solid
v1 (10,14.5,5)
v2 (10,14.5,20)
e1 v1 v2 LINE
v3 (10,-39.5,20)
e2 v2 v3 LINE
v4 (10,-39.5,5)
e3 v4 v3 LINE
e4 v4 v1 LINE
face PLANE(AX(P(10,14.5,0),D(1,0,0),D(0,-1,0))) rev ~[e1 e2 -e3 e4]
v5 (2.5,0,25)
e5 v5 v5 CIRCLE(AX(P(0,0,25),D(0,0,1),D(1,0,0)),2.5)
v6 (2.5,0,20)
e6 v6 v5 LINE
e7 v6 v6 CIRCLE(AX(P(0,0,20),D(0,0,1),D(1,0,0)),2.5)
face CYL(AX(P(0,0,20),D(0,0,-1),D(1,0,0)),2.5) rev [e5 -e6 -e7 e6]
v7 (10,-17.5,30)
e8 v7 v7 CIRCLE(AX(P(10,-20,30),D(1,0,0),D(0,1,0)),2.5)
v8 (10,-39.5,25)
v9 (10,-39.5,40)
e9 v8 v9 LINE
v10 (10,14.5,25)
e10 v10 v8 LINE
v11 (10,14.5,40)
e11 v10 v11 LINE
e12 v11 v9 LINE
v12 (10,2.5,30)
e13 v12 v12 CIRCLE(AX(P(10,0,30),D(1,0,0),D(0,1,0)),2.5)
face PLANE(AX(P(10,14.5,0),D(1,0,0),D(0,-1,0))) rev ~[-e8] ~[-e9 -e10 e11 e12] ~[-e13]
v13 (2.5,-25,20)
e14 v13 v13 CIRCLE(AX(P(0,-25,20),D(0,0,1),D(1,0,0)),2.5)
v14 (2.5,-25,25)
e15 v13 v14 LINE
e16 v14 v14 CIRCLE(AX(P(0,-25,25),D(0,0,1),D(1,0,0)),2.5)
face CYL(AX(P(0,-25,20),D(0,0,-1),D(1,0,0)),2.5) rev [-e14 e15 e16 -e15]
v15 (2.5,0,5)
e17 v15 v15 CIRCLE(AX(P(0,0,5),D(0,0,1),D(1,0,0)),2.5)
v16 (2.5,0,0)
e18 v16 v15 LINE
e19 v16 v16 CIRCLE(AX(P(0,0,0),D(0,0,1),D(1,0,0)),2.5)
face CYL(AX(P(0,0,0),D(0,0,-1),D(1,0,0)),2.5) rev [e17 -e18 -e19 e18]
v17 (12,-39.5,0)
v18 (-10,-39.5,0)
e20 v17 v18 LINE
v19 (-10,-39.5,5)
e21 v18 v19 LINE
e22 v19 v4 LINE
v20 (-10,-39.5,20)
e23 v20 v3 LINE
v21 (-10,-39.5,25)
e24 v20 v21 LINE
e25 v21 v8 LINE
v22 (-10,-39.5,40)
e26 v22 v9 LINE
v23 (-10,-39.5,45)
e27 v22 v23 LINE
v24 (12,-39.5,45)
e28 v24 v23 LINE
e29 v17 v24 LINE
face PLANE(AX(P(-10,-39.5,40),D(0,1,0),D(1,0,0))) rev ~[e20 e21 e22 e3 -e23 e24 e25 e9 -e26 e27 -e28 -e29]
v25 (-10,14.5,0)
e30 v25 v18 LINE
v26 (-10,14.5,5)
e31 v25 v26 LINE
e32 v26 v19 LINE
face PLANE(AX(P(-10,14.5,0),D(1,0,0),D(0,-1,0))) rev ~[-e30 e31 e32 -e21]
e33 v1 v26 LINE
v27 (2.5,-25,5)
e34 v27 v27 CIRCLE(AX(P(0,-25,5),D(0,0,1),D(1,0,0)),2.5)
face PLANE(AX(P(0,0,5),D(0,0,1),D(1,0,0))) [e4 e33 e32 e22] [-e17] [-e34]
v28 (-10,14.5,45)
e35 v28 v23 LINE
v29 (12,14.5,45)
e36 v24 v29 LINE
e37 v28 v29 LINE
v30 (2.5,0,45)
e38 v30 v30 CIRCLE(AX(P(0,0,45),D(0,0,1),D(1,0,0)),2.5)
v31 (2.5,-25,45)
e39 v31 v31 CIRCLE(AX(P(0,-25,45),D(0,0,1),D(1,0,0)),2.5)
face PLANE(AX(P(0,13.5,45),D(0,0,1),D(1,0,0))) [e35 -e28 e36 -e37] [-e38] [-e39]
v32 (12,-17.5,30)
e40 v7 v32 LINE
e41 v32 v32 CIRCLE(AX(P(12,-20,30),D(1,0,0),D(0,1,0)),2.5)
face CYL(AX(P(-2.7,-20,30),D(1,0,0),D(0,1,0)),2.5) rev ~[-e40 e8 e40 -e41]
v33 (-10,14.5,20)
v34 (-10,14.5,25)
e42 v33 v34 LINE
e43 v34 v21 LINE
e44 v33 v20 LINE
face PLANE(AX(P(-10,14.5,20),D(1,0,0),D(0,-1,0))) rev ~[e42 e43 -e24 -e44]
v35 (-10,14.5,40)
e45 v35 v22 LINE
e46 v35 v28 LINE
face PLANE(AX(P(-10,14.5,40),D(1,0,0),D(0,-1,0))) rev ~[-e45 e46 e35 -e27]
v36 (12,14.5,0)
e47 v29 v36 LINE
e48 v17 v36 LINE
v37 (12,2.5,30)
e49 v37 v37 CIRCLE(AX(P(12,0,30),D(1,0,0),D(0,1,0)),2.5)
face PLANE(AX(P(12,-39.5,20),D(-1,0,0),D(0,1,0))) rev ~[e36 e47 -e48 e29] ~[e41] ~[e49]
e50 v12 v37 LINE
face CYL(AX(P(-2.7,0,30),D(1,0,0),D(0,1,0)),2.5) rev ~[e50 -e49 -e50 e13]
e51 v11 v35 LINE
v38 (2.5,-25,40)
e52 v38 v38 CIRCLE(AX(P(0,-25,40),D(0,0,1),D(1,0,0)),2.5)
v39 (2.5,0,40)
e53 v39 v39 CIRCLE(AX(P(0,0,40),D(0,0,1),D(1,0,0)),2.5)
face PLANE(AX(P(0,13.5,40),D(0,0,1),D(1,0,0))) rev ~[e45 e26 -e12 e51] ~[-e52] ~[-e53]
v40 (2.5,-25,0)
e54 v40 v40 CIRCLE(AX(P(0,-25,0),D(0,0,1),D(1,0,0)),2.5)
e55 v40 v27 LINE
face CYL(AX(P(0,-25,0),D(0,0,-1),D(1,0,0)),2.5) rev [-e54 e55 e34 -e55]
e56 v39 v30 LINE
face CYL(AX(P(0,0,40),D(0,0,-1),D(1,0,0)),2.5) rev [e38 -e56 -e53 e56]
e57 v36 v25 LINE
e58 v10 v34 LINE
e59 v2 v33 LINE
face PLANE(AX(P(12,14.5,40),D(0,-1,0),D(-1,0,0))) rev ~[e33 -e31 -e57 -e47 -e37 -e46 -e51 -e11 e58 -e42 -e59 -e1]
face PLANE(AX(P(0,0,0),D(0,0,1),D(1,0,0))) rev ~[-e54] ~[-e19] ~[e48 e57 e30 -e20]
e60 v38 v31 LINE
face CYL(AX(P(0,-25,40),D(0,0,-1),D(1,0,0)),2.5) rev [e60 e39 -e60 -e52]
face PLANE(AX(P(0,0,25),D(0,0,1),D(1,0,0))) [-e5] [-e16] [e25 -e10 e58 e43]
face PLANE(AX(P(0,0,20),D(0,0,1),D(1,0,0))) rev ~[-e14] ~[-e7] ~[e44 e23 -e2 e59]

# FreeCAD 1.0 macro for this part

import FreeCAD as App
import Part
import Sketcher


def add_polygon(sketch, points):
    """Adds a closed chain of lines whose ends are joined by coincident constraints."""
    first, n = sketch.GeometryCount, len(points)
    for a, b in zip(points, points[1:] + points[:1]):
        sketch.addGeometry(Part.LineSegment(App.Vector(*a, 0), App.Vector(*b, 0)), False)
    for i in range(n):
        sketch.addConstraint(Sketcher.Constraint("Coincident", first + i, 2, first + (i + 1) % n, 1))

doc = App.newDocument("Part")
params = doc.addObject("Spreadsheet::Sheet", "Params")
for row, (alias, value) in enumerate([
    ("sketch1_diameter", "5 mm"),
    ("sketch1_width", "22 mm"),
    ("sketch1_height", "54 mm"),
    ("pad1_length", "5 mm"),
    ("sketch2_width", "2 mm"),
    ("sketch2_height", "54 mm"),
    ("pad2_length", "45 mm"),
    ("sketch3_diameter", "5 mm"),
    ("sketch3_width", "22 mm"),
    ("sketch3_height", "54 mm"),
    ("pad3_length", "5 mm"),
    ("sketch4_diameter", "5 mm"),
    ("sketch4_width", "22 mm"),
    ("sketch4_height", "54 mm"),
    ("pad4_length", "5 mm"),
    ("sketch5_diameter", "5 mm"),
    ("hole_diameter", "5 mm"),
    ("hole_depth", "12.7 mm"),
], start=1):
    params.set(f"A{row}", alias)
    params.set(f"B{row}", "=" + value)
    params.setAlias(f"B{row}", alias)

body = doc.addObject("PartDesign::Body", "Body")

sketch1 = doc.addObject("Sketcher::SketchObject", "Sketch")
body.addObject(sketch1)
sketch1.AttachmentSupport = (doc.XY_Plane, [""])
sketch1.MapMode = "FlatFace"
add_polygon(sketch1, [(-10, 14.5), (-10, -39.5), (12, -39.5), (12, 14.5)])
sketch1.addGeometry(Part.Circle(App.Vector(0, -25, 0), App.Vector(0, 0, 1), 2.5), False)
sketch1.addGeometry(Part.Circle(App.Vector(0, 0, 0), App.Vector(0, 0, 1), 2.5), False)
sketch1.addConstraint([
    Sketcher.Constraint("Vertical", 0),
    Sketcher.Constraint("Horizontal", 1),
    Sketcher.Constraint("Vertical", 2),
    Sketcher.Constraint("Horizontal", 3),
    Sketcher.Constraint("Coincident", 5, 3, -1, 1),
    Sketcher.Constraint("Equal", 4, 5),
    Sketcher.Constraint("PointOnObject", 4, 3, -2),
    Sketcher.Constraint("Diameter", 4, 5.0),
    Sketcher.Constraint("DistanceX", 1, 1, 1, 2, 22.0),
    Sketcher.Constraint("DistanceY", 0, 2, 0, 1, 54.0),
    Sketcher.Constraint("DistanceY", 4, 3, -1, 1, 25.0),
    Sketcher.Constraint("DistanceX", 0, 2, -1, 1, 10.0),
    Sketcher.Constraint("DistanceY", 0, 2, -1, 1, 39.5),
])
sketch1.setExpression("Constraints[11]", "Params.sketch1_diameter")
sketch1.setExpression("Constraints[12]", "Params.sketch1_width")
sketch1.setExpression("Constraints[13]", "Params.sketch1_height")
pad1 = doc.addObject("PartDesign::Pad", "Pad")
body.addObject(pad1)
pad1.Profile = sketch1
pad1.setExpression("Length", "Params.pad1_length")

sketch2 = doc.addObject("Sketcher::SketchObject", "Sketch001")
body.addObject(sketch2)
sketch2.AttachmentSupport = (doc.XY_Plane, [""])
sketch2.MapMode = "FlatFace"
add_polygon(sketch2, [(10, -39.5), (12, -39.5), (12, 14.5), (10, 14.5)])
sketch2.addConstraint([
    Sketcher.Constraint("Horizontal", 0),
    Sketcher.Constraint("Vertical", 1),
    Sketcher.Constraint("Horizontal", 2),
    Sketcher.Constraint("Vertical", 3),
    Sketcher.Constraint("DistanceX", 0, 1, 0, 2, 2.0),
    Sketcher.Constraint("DistanceY", 1, 1, 1, 2, 54.0),
    Sketcher.Constraint("DistanceX", -1, 1, 0, 2, 12.0),
    Sketcher.Constraint("DistanceY", 0, 2, -1, 1, 39.5),
])
sketch2.setExpression("Constraints[8]", "Params.sketch2_width")
sketch2.setExpression("Constraints[9]", "Params.sketch2_height")
pad2 = doc.addObject("PartDesign::Pad", "Pad001")
body.addObject(pad2)
pad2.Profile = sketch2
pad2.setExpression("Length", "Params.pad2_length")

sketch3 = doc.addObject("Sketcher::SketchObject", "Sketch002")
body.addObject(sketch3)
sketch3.AttachmentSupport = (doc.XY_Plane, [""])
sketch3.MapMode = "FlatFace"
sketch3.AttachmentOffset = App.Placement(App.Vector(0, 0, 20), App.Rotation())
add_polygon(sketch3, [(-10, 14.5), (-10, -39.5), (12, -39.5), (12, 14.5)])
sketch3.addGeometry(Part.Circle(App.Vector(0, -25, 0), App.Vector(0, 0, 1), 2.5), False)
sketch3.addGeometry(Part.Circle(App.Vector(0, 0, 0), App.Vector(0, 0, 1), 2.5), False)
sketch3.addConstraint([
    Sketcher.Constraint("Vertical", 0),
    Sketcher.Constraint("Horizontal", 1),
    Sketcher.Constraint("Vertical", 2),
    Sketcher.Constraint("Horizontal", 3),
    Sketcher.Constraint("Coincident", 5, 3, -1, 1),
    Sketcher.Constraint("Equal", 4, 5),
    Sketcher.Constraint("PointOnObject", 4, 3, -2),
    Sketcher.Constraint("Diameter", 4, 5.0),
    Sketcher.Constraint("DistanceX", 1, 1, 1, 2, 22.0),
    Sketcher.Constraint("DistanceY", 0, 2, 0, 1, 54.0),
    Sketcher.Constraint("DistanceY", 4, 3, -1, 1, 25.0),
    Sketcher.Constraint("DistanceX", 0, 2, -1, 1, 10.0),
    Sketcher.Constraint("DistanceY", 0, 2, -1, 1, 39.5),
])
sketch3.setExpression("Constraints[11]", "Params.sketch3_diameter")
sketch3.setExpression("Constraints[12]", "Params.sketch3_width")
sketch3.setExpression("Constraints[13]", "Params.sketch3_height")
pad3 = doc.addObject("PartDesign::Pad", "Pad002")
body.addObject(pad3)
pad3.Profile = sketch3
pad3.setExpression("Length", "Params.pad3_length")

sketch4 = doc.addObject("Sketcher::SketchObject", "Sketch003")
body.addObject(sketch4)
sketch4.AttachmentSupport = (doc.XY_Plane, [""])
sketch4.MapMode = "FlatFace"
sketch4.AttachmentOffset = App.Placement(App.Vector(0, 0, 40), App.Rotation())
add_polygon(sketch4, [(-10, 14.5), (-10, -39.5), (12, -39.5), (12, 14.5)])
sketch4.addGeometry(Part.Circle(App.Vector(0, -25, 0), App.Vector(0, 0, 1), 2.5), False)
sketch4.addGeometry(Part.Circle(App.Vector(0, 0, 0), App.Vector(0, 0, 1), 2.5), False)
sketch4.addConstraint([
    Sketcher.Constraint("Vertical", 0),
    Sketcher.Constraint("Horizontal", 1),
    Sketcher.Constraint("Vertical", 2),
    Sketcher.Constraint("Horizontal", 3),
    Sketcher.Constraint("Coincident", 5, 3, -1, 1),
    Sketcher.Constraint("Equal", 4, 5),
    Sketcher.Constraint("PointOnObject", 4, 3, -2),
    Sketcher.Constraint("Diameter", 4, 5.0),
    Sketcher.Constraint("DistanceX", 1, 1, 1, 2, 22.0),
    Sketcher.Constraint("DistanceY", 0, 2, 0, 1, 54.0),
    Sketcher.Constraint("DistanceY", 4, 3, -1, 1, 25.0),
    Sketcher.Constraint("DistanceX", 0, 2, -1, 1, 10.0),
    Sketcher.Constraint("DistanceY", 0, 2, -1, 1, 39.5),
])
sketch4.setExpression("Constraints[11]", "Params.sketch4_diameter")
sketch4.setExpression("Constraints[12]", "Params.sketch4_width")
sketch4.setExpression("Constraints[13]", "Params.sketch4_height")
pad4 = doc.addObject("PartDesign::Pad", "Pad003")
body.addObject(pad4)
pad4.Profile = sketch4
pad4.setExpression("Length", "Params.pad4_length")

sketch5 = doc.addObject("Sketcher::SketchObject", "Sketch004")
body.addObject(sketch5)
sketch5.AttachmentSupport = (doc.YZ_Plane, [""])
sketch5.MapMode = "FlatFace"
sketch5.AttachmentOffset = App.Placement(App.Vector(0, 0, 10), App.Rotation())
sketch5.addGeometry([
    Part.Circle(App.Vector(0, 30, 0), App.Vector(0, 0, 1), 2.5),
    Part.Circle(App.Vector(-20, 30, 0), App.Vector(0, 0, 1), 2.5),
], False)
sketch5.addConstraint([
    Sketcher.Constraint("Equal", 0, 1),
    Sketcher.Constraint("PointOnObject", 0, 3, -2),
    Sketcher.Constraint("Horizontal", 0, 3, 1, 3),
    Sketcher.Constraint("Diameter", 0, 5.0),
    Sketcher.Constraint("DistanceY", -1, 1, 0, 3, 30.0),
    Sketcher.Constraint("DistanceX", 1, 3, -1, 1, 20.0),
])
sketch5.setExpression("Constraints[3]", "Params.sketch5_diameter")
doc.recompute()
hole = doc.addObject("PartDesign::Hole", "Hole")
body.addObject(hole)
hole.Profile = sketch5
hole.ThreadType = "None"
hole.setExpression("Diameter", "Params.hole_diameter")
hole.DepthType = "Dimension"
hole.setExpression("Depth", "Params.hole_depth")
hole.DrillPoint = "Angled"
hole.DrillPointAngle = 118
hole.Reversed = True

doc.recompute()
